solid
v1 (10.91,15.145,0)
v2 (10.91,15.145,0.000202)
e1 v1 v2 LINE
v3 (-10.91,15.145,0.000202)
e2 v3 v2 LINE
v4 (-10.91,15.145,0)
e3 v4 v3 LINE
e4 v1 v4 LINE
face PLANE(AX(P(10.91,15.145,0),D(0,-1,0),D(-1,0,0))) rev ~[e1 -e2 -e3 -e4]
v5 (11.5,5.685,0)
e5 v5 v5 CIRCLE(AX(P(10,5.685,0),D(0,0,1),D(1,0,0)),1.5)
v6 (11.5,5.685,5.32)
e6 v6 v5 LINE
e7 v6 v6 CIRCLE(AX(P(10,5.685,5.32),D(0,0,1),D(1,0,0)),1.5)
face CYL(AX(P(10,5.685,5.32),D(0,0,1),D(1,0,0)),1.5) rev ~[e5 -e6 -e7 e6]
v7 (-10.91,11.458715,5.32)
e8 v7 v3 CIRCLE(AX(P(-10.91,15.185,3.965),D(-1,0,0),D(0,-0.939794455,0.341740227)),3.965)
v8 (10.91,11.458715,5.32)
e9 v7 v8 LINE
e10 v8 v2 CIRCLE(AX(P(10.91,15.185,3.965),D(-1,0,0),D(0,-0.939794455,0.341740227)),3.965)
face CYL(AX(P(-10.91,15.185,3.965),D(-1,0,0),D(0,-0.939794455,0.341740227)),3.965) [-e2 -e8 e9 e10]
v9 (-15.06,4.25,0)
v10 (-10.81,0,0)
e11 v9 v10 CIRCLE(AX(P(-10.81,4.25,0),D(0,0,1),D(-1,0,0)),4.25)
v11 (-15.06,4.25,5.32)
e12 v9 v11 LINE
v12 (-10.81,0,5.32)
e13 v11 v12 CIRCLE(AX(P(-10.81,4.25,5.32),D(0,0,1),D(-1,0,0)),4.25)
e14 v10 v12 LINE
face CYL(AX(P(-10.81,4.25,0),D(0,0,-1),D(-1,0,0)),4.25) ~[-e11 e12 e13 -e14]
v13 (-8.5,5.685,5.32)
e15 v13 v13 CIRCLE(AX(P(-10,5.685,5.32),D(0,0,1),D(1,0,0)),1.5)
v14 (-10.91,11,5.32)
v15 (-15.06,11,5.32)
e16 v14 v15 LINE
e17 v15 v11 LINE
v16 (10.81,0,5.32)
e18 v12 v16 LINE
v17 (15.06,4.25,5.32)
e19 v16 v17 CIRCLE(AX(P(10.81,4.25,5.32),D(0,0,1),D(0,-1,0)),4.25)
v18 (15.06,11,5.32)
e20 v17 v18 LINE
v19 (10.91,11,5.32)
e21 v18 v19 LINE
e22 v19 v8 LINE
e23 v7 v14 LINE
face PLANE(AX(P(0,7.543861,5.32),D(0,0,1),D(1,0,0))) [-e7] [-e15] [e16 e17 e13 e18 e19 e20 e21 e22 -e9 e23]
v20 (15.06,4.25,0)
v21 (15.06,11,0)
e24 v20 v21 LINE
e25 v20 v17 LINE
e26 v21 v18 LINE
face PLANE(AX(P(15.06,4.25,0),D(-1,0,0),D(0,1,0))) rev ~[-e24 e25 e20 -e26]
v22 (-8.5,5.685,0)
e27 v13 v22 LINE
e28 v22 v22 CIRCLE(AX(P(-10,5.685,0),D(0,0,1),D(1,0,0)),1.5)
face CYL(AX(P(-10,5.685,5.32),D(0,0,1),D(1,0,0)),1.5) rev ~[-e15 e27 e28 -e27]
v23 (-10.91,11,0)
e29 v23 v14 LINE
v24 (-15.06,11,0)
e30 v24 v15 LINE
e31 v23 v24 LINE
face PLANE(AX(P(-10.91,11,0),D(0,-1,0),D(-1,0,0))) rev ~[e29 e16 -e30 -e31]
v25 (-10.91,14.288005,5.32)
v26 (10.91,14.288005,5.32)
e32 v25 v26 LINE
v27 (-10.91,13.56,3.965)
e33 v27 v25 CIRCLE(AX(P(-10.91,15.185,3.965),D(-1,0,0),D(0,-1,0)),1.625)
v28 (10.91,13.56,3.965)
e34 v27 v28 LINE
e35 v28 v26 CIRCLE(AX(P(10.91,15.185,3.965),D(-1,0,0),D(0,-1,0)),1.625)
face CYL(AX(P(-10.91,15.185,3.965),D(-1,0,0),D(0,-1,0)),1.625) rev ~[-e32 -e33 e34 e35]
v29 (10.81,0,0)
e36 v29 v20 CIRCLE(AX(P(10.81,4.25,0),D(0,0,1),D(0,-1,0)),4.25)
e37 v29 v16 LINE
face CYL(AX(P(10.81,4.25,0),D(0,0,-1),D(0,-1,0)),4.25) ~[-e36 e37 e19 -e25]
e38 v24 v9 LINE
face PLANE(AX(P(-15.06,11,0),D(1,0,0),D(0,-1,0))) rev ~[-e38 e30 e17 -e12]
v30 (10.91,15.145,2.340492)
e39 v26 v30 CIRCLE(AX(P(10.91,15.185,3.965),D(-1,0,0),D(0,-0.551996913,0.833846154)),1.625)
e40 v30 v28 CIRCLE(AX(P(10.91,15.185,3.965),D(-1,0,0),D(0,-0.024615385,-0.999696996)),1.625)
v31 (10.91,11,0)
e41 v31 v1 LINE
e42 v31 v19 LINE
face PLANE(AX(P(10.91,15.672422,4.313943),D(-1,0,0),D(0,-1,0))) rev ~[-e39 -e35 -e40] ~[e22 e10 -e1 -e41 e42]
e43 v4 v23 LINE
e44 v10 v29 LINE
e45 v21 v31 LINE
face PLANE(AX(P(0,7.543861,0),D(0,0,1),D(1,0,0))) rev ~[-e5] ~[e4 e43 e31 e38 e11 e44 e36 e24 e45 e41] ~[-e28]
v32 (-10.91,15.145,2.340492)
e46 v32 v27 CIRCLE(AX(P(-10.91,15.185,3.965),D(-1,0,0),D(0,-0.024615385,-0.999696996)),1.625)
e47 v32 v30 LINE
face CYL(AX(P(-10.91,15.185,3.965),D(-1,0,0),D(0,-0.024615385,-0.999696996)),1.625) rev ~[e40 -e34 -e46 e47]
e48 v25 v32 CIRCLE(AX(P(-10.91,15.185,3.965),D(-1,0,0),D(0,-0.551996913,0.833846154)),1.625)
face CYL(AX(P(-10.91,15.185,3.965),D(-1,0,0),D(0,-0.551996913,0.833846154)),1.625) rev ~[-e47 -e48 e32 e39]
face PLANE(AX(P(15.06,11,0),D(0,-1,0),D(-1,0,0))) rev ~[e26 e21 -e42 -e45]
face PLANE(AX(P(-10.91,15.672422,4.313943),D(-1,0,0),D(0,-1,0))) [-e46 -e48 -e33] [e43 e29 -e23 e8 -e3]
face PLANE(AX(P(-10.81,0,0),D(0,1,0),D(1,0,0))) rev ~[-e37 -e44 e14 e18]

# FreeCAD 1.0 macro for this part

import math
import FreeCAD as App
import Part
import Sketcher

V = App.Vector
Q = App.Units.Quantity

doc = App.newDocument("Part")
body = doc.addObject("PartDesign::Body", "Body")

sketch1 = body.newObject("Sketcher::SketchObject", "Sketch")
sketch1.AttachmentSupport = (doc.getObject("XY_Plane"), [""])
sketch1.MapMode = "FlatFace"
sketch1.addGeometry(Part.LineSegment(V(-10.8, 0, 0), V(10.8, 0, 0)), False)
sketch1.addGeometry(Part.ArcOfCircle(Part.Circle(V(10.8, 4.2, 0), V(0, 0, 1), 4.2), math.radians(-90), math.radians(0)), False)
sketch1.addGeometry(Part.LineSegment(V(15.1, 4.2, 0), V(15.1, 11, 0)), False)
sketch1.addGeometry(Part.LineSegment(V(15.1, 11, 0), V(10.9, 11, 0)), False)
sketch1.addGeometry(Part.LineSegment(V(10.9, 11, 0), V(10.9, 15.1, 0)), False)
sketch1.addGeometry(Part.LineSegment(V(10.9, 15.1, 0), V(-10.9, 15.1, 0)), False)
sketch1.addGeometry(Part.LineSegment(V(-10.9, 15.1, 0), V(-10.9, 11, 0)), False)
sketch1.addGeometry(Part.LineSegment(V(-10.9, 11, 0), V(-15.1, 11, 0)), False)
sketch1.addGeometry(Part.LineSegment(V(-15.1, 11, 0), V(-15.1, 4.2, 0)), False)
sketch1.addGeometry(Part.ArcOfCircle(Part.Circle(V(-10.8, 4.2, 0), V(0, 0, 1), 4.2), math.radians(180), math.radians(270)), False)
sketch1.addConstraint(Sketcher.Constraint("Tangent", 0, 2, 1, 1))
sketch1.addConstraint(Sketcher.Constraint("Tangent", 1, 2, 2, 1))
sketch1.addConstraint(Sketcher.Constraint("Coincident", 2, 2, 3, 1))
sketch1.addConstraint(Sketcher.Constraint("Coincident", 3, 2, 4, 1))
sketch1.addConstraint(Sketcher.Constraint("Coincident", 4, 2, 5, 1))
sketch1.addConstraint(Sketcher.Constraint("Coincident", 5, 2, 6, 1))
sketch1.addConstraint(Sketcher.Constraint("Coincident", 6, 2, 7, 1))
sketch1.addConstraint(Sketcher.Constraint("Coincident", 7, 2, 8, 1))
sketch1.addConstraint(Sketcher.Constraint("Tangent", 8, 2, 9, 1))
sketch1.addConstraint(Sketcher.Constraint("Tangent", 9, 2, 0, 1))
sketch1.addConstraint(Sketcher.Constraint("Horizontal", 0))
sketch1.addConstraint(Sketcher.Constraint("Vertical", 2))
sketch1.addConstraint(Sketcher.Constraint("Horizontal", 3))
sketch1.addConstraint(Sketcher.Constraint("Vertical", 4))
sketch1.addConstraint(Sketcher.Constraint("Horizontal", 5))
sketch1.addConstraint(Sketcher.Constraint("Vertical", 6))
sketch1.addConstraint(Sketcher.Constraint("Horizontal", 7))
sketch1.addConstraint(Sketcher.Constraint("Vertical", 8))
sketch1.addConstraint(Sketcher.Constraint("Equal", 1, 9))
sketch1.addConstraint(Sketcher.Constraint("Symmetric", 0, 2, 9, 2, -1, 1))
sketch1.addConstraint(Sketcher.Constraint("Symmetric", 3, 2, 6, 2, -2))
sketch1.addConstraint(Sketcher.Constraint("Radius", 1, Q("4.25 mm")))
sketch1.addConstraint(Sketcher.Constraint("DistanceY", -1, 1, 2, 2, Q("11 mm")))
sketch1.addConstraint(Sketcher.Constraint("DistanceX", 0, 1, 0, 2, Q("21.62 mm")))
sketch1.addConstraint(Sketcher.Constraint("DistanceX", 3, 2, 3, 1, Q("4.15 mm")))
sketch1.addConstraint(Sketcher.Constraint("DistanceY", 4, 1, 4, 2, Q("4.145 mm")))
pad1 = body.newObject("PartDesign::Pad", "Pad")
pad1.Profile = sketch1
pad1.Length = 5.32

sketch2 = body.newObject("Sketcher::SketchObject", "Sketch001")
sketch2.AttachmentSupport = (doc.getObject("YZ_Plane"), [""])
sketch2.MapMode = "FlatFace"
sketch2.AttachmentOffset = App.Placement(V(0, 0, -10.91), App.Rotation())
sketch2.addGeometry(Part.ArcOfCircle(Part.Circle(V(15.2, 4, 0), V(0, 0, 1), 4), math.radians(-91), math.radians(160)), False)
sketch2.addGeometry(Part.LineSegment(V(15.1, 0, 0), V(15.1, 5.3, 0)), False)
sketch2.addGeometry(Part.LineSegment(V(15.1, 5.3, 0), V(11.5, 5.3, 0)), False)
sketch2.addConstraint(Sketcher.Constraint("Coincident", 0, 1, 1, 1))
sketch2.addConstraint(Sketcher.Constraint("Coincident", 1, 2, 2, 1))
sketch2.addConstraint(Sketcher.Constraint("Coincident", 2, 2, 0, 2))
sketch2.addConstraint(Sketcher.Constraint("Vertical", 1))
sketch2.addConstraint(Sketcher.Constraint("Horizontal", 2))
sketch2.addConstraint(Sketcher.Constraint("Radius", 0, Q("3.965 mm")))
sketch2.addConstraint(Sketcher.Constraint("DistanceY", -1, 1, 1, 2, Q("5.32 mm")))
sketch2.addConstraint(Sketcher.Constraint("DistanceX", 0, 1, 0, 3, Q("0.04 mm")))
sketch2.addConstraint(Sketcher.Constraint("DistanceY", 1, 1, 1, 2, Q("5.319798 mm")))
sketch2.addConstraint(Sketcher.Constraint("DistanceX", -1, 1, 0, 3, Q("15.185 mm")))
pad2 = body.newObject("PartDesign::Pad", "Pad001")
pad2.Profile = sketch2
pad2.Length = 21.82

sketch3 = body.newObject("Sketcher::SketchObject", "Sketch002")
sketch3.AttachmentSupport = (doc.getObject("YZ_Plane"), [""])
sketch3.MapMode = "FlatFace"
sketch3.AttachmentOffset = App.Placement(V(0, 0, -10.91), App.Rotation())
sketch3.addGeometry(Part.ArcOfCircle(Part.Circle(V(15.2, 4, 0), V(0, 0, 1), 1.6), math.radians(-91), math.radians(124)), False)
sketch3.addGeometry(Part.ArcOfCircle(Part.Circle(V(15.2, 4, 0), V(0, 0, 1), 1.6), math.radians(180), math.radians(269)), False)
sketch3.addGeometry(Part.ArcOfCircle(Part.Circle(V(15.2, 4, 0), V(0, 0, 1), 1.6), math.radians(124), math.radians(180)), False)
sketch3.addConstraint(Sketcher.Constraint("Tangent", 0, 1, 1, 2))
sketch3.addConstraint(Sketcher.Constraint("Tangent", 1, 1, 2, 2))
sketch3.addConstraint(Sketcher.Constraint("Tangent", 2, 1, 0, 2))
sketch3.addConstraint(Sketcher.Constraint("Horizontal", 2, 3, 1, 1))
sketch3.addConstraint(Sketcher.Constraint("Radius", 0, Q("1.625 mm")))
sketch3.addConstraint(Sketcher.Constraint("DistanceX", -1, 1, 1, 1, Q("13.56 mm")))
sketch3.addConstraint(Sketcher.Constraint("DistanceY", -1, 1, 2, 1, Q("5.32 mm")))
sketch3.addConstraint(Sketcher.Constraint("DistanceX", 0, 1, 0, 3, Q("0.04 mm")))
sketch3.addConstraint(Sketcher.Constraint("DistanceY", -1, 1, 0, 3, Q("3.965 mm")))
pocket1 = body.newObject("PartDesign::Pocket", "Pocket")
pocket1.Profile = sketch3
pocket1.Type = "ThroughAll"
pocket1.Reversed = True

sketch4 = body.newObject("Sketcher::SketchObject", "Sketch003")
sketch4.AttachmentSupport = (doc.getObject("XY_Plane"), [""])
sketch4.MapMode = "FlatFace"
sketch4.AttachmentOffset = App.Placement(V(0, 0, 5.32), App.Rotation())
sketch4.addGeometry(Part.Circle(V(-10, 5.7, 0), V(0, 0, 1), 1.5), False)
sketch4.addGeometry(Part.Circle(V(10, 5.7, 0), V(0, 0, 1), 1.5), False)
sketch4.addConstraint(Sketcher.Constraint("Equal", 0, 1))
sketch4.addConstraint(Sketcher.Constraint("Symmetric", 0, 3, 1, 3, -2))
sketch4.addConstraint(Sketcher.Constraint("Diameter", 0, Q("3 mm")))
sketch4.addConstraint(Sketcher.Constraint("DistanceX", 0, 3, -1, 1, Q("10 mm")))
sketch4.addConstraint(Sketcher.Constraint("DistanceY", -1, 1, 0, 3, Q("5.685 mm")))
pocket2 = body.newObject("PartDesign::Pocket", "Pocket001")
pocket2.Profile = sketch4
pocket2.Type = "ThroughAll"

doc.recompute()
